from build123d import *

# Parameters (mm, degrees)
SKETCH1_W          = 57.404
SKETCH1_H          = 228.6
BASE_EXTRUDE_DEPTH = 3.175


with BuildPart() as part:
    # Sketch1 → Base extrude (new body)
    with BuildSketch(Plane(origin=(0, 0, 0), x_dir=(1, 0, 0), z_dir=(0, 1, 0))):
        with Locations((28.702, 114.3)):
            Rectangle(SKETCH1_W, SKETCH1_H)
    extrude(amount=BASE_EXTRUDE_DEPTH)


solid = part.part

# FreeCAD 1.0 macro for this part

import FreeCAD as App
import Part
import Sketcher
from FreeCAD import Vector
Q = App.Units.Quantity

doc = App.newDocument("Part")
body = doc.addObject("PartDesign::Body", "Body")

sketch1 = body.newObject("Sketcher::SketchObject", "Sketch")
sketch1.AttachmentSupport = (doc.getObject("XZ_Plane"), [""])
sketch1.MapMode = "FlatFace"
sketch1.addGeometry(Part.LineSegment(Vector(0, -229, 0), Vector(0, 0, 0)), False)
sketch1.addGeometry(Part.LineSegment(Vector(0, 0, 0), Vector(57, 0, 0)), False)
sketch1.addGeometry(Part.LineSegment(Vector(57, 0, 0), Vector(57, -229, 0)), False)
sketch1.addGeometry(Part.LineSegment(Vector(57, -229, 0), Vector(0, -229, 0)), False)
sketch1.addConstraint(Sketcher.Constraint("Coincident", 0, 2, 1, 1))
sketch1.addConstraint(Sketcher.Constraint("Coincident", 1, 2, 2, 1))
sketch1.addConstraint(Sketcher.Constraint("Coincident", 2, 2, 3, 1))
sketch1.addConstraint(Sketcher.Constraint("Coincident", 3, 2, 0, 1))
sketch1.addConstraint(Sketcher.Constraint("Vertical", 0))
sketch1.addConstraint(Sketcher.Constraint("Horizontal", 1))
sketch1.addConstraint(Sketcher.Constraint("Vertical", 2))
sketch1.addConstraint(Sketcher.Constraint("Horizontal", 3))
sketch1.addConstraint(Sketcher.Constraint("Coincident", 0, 2, -1, 1))
sketch1.addConstraint(Sketcher.Constraint("DistanceY", 0, 1, 0, 2, Q("9 in")))
sketch1.addConstraint(Sketcher.Constraint("DistanceX", 1, 1, 1, 2, Q("2.26 in")))
pad1 = body.newObject("PartDesign::Pad", "Pad")
pad1.Profile = sketch1
pad1.Length = Q("0.125 in")
pad1.Reversed = True

doc.recompute()
